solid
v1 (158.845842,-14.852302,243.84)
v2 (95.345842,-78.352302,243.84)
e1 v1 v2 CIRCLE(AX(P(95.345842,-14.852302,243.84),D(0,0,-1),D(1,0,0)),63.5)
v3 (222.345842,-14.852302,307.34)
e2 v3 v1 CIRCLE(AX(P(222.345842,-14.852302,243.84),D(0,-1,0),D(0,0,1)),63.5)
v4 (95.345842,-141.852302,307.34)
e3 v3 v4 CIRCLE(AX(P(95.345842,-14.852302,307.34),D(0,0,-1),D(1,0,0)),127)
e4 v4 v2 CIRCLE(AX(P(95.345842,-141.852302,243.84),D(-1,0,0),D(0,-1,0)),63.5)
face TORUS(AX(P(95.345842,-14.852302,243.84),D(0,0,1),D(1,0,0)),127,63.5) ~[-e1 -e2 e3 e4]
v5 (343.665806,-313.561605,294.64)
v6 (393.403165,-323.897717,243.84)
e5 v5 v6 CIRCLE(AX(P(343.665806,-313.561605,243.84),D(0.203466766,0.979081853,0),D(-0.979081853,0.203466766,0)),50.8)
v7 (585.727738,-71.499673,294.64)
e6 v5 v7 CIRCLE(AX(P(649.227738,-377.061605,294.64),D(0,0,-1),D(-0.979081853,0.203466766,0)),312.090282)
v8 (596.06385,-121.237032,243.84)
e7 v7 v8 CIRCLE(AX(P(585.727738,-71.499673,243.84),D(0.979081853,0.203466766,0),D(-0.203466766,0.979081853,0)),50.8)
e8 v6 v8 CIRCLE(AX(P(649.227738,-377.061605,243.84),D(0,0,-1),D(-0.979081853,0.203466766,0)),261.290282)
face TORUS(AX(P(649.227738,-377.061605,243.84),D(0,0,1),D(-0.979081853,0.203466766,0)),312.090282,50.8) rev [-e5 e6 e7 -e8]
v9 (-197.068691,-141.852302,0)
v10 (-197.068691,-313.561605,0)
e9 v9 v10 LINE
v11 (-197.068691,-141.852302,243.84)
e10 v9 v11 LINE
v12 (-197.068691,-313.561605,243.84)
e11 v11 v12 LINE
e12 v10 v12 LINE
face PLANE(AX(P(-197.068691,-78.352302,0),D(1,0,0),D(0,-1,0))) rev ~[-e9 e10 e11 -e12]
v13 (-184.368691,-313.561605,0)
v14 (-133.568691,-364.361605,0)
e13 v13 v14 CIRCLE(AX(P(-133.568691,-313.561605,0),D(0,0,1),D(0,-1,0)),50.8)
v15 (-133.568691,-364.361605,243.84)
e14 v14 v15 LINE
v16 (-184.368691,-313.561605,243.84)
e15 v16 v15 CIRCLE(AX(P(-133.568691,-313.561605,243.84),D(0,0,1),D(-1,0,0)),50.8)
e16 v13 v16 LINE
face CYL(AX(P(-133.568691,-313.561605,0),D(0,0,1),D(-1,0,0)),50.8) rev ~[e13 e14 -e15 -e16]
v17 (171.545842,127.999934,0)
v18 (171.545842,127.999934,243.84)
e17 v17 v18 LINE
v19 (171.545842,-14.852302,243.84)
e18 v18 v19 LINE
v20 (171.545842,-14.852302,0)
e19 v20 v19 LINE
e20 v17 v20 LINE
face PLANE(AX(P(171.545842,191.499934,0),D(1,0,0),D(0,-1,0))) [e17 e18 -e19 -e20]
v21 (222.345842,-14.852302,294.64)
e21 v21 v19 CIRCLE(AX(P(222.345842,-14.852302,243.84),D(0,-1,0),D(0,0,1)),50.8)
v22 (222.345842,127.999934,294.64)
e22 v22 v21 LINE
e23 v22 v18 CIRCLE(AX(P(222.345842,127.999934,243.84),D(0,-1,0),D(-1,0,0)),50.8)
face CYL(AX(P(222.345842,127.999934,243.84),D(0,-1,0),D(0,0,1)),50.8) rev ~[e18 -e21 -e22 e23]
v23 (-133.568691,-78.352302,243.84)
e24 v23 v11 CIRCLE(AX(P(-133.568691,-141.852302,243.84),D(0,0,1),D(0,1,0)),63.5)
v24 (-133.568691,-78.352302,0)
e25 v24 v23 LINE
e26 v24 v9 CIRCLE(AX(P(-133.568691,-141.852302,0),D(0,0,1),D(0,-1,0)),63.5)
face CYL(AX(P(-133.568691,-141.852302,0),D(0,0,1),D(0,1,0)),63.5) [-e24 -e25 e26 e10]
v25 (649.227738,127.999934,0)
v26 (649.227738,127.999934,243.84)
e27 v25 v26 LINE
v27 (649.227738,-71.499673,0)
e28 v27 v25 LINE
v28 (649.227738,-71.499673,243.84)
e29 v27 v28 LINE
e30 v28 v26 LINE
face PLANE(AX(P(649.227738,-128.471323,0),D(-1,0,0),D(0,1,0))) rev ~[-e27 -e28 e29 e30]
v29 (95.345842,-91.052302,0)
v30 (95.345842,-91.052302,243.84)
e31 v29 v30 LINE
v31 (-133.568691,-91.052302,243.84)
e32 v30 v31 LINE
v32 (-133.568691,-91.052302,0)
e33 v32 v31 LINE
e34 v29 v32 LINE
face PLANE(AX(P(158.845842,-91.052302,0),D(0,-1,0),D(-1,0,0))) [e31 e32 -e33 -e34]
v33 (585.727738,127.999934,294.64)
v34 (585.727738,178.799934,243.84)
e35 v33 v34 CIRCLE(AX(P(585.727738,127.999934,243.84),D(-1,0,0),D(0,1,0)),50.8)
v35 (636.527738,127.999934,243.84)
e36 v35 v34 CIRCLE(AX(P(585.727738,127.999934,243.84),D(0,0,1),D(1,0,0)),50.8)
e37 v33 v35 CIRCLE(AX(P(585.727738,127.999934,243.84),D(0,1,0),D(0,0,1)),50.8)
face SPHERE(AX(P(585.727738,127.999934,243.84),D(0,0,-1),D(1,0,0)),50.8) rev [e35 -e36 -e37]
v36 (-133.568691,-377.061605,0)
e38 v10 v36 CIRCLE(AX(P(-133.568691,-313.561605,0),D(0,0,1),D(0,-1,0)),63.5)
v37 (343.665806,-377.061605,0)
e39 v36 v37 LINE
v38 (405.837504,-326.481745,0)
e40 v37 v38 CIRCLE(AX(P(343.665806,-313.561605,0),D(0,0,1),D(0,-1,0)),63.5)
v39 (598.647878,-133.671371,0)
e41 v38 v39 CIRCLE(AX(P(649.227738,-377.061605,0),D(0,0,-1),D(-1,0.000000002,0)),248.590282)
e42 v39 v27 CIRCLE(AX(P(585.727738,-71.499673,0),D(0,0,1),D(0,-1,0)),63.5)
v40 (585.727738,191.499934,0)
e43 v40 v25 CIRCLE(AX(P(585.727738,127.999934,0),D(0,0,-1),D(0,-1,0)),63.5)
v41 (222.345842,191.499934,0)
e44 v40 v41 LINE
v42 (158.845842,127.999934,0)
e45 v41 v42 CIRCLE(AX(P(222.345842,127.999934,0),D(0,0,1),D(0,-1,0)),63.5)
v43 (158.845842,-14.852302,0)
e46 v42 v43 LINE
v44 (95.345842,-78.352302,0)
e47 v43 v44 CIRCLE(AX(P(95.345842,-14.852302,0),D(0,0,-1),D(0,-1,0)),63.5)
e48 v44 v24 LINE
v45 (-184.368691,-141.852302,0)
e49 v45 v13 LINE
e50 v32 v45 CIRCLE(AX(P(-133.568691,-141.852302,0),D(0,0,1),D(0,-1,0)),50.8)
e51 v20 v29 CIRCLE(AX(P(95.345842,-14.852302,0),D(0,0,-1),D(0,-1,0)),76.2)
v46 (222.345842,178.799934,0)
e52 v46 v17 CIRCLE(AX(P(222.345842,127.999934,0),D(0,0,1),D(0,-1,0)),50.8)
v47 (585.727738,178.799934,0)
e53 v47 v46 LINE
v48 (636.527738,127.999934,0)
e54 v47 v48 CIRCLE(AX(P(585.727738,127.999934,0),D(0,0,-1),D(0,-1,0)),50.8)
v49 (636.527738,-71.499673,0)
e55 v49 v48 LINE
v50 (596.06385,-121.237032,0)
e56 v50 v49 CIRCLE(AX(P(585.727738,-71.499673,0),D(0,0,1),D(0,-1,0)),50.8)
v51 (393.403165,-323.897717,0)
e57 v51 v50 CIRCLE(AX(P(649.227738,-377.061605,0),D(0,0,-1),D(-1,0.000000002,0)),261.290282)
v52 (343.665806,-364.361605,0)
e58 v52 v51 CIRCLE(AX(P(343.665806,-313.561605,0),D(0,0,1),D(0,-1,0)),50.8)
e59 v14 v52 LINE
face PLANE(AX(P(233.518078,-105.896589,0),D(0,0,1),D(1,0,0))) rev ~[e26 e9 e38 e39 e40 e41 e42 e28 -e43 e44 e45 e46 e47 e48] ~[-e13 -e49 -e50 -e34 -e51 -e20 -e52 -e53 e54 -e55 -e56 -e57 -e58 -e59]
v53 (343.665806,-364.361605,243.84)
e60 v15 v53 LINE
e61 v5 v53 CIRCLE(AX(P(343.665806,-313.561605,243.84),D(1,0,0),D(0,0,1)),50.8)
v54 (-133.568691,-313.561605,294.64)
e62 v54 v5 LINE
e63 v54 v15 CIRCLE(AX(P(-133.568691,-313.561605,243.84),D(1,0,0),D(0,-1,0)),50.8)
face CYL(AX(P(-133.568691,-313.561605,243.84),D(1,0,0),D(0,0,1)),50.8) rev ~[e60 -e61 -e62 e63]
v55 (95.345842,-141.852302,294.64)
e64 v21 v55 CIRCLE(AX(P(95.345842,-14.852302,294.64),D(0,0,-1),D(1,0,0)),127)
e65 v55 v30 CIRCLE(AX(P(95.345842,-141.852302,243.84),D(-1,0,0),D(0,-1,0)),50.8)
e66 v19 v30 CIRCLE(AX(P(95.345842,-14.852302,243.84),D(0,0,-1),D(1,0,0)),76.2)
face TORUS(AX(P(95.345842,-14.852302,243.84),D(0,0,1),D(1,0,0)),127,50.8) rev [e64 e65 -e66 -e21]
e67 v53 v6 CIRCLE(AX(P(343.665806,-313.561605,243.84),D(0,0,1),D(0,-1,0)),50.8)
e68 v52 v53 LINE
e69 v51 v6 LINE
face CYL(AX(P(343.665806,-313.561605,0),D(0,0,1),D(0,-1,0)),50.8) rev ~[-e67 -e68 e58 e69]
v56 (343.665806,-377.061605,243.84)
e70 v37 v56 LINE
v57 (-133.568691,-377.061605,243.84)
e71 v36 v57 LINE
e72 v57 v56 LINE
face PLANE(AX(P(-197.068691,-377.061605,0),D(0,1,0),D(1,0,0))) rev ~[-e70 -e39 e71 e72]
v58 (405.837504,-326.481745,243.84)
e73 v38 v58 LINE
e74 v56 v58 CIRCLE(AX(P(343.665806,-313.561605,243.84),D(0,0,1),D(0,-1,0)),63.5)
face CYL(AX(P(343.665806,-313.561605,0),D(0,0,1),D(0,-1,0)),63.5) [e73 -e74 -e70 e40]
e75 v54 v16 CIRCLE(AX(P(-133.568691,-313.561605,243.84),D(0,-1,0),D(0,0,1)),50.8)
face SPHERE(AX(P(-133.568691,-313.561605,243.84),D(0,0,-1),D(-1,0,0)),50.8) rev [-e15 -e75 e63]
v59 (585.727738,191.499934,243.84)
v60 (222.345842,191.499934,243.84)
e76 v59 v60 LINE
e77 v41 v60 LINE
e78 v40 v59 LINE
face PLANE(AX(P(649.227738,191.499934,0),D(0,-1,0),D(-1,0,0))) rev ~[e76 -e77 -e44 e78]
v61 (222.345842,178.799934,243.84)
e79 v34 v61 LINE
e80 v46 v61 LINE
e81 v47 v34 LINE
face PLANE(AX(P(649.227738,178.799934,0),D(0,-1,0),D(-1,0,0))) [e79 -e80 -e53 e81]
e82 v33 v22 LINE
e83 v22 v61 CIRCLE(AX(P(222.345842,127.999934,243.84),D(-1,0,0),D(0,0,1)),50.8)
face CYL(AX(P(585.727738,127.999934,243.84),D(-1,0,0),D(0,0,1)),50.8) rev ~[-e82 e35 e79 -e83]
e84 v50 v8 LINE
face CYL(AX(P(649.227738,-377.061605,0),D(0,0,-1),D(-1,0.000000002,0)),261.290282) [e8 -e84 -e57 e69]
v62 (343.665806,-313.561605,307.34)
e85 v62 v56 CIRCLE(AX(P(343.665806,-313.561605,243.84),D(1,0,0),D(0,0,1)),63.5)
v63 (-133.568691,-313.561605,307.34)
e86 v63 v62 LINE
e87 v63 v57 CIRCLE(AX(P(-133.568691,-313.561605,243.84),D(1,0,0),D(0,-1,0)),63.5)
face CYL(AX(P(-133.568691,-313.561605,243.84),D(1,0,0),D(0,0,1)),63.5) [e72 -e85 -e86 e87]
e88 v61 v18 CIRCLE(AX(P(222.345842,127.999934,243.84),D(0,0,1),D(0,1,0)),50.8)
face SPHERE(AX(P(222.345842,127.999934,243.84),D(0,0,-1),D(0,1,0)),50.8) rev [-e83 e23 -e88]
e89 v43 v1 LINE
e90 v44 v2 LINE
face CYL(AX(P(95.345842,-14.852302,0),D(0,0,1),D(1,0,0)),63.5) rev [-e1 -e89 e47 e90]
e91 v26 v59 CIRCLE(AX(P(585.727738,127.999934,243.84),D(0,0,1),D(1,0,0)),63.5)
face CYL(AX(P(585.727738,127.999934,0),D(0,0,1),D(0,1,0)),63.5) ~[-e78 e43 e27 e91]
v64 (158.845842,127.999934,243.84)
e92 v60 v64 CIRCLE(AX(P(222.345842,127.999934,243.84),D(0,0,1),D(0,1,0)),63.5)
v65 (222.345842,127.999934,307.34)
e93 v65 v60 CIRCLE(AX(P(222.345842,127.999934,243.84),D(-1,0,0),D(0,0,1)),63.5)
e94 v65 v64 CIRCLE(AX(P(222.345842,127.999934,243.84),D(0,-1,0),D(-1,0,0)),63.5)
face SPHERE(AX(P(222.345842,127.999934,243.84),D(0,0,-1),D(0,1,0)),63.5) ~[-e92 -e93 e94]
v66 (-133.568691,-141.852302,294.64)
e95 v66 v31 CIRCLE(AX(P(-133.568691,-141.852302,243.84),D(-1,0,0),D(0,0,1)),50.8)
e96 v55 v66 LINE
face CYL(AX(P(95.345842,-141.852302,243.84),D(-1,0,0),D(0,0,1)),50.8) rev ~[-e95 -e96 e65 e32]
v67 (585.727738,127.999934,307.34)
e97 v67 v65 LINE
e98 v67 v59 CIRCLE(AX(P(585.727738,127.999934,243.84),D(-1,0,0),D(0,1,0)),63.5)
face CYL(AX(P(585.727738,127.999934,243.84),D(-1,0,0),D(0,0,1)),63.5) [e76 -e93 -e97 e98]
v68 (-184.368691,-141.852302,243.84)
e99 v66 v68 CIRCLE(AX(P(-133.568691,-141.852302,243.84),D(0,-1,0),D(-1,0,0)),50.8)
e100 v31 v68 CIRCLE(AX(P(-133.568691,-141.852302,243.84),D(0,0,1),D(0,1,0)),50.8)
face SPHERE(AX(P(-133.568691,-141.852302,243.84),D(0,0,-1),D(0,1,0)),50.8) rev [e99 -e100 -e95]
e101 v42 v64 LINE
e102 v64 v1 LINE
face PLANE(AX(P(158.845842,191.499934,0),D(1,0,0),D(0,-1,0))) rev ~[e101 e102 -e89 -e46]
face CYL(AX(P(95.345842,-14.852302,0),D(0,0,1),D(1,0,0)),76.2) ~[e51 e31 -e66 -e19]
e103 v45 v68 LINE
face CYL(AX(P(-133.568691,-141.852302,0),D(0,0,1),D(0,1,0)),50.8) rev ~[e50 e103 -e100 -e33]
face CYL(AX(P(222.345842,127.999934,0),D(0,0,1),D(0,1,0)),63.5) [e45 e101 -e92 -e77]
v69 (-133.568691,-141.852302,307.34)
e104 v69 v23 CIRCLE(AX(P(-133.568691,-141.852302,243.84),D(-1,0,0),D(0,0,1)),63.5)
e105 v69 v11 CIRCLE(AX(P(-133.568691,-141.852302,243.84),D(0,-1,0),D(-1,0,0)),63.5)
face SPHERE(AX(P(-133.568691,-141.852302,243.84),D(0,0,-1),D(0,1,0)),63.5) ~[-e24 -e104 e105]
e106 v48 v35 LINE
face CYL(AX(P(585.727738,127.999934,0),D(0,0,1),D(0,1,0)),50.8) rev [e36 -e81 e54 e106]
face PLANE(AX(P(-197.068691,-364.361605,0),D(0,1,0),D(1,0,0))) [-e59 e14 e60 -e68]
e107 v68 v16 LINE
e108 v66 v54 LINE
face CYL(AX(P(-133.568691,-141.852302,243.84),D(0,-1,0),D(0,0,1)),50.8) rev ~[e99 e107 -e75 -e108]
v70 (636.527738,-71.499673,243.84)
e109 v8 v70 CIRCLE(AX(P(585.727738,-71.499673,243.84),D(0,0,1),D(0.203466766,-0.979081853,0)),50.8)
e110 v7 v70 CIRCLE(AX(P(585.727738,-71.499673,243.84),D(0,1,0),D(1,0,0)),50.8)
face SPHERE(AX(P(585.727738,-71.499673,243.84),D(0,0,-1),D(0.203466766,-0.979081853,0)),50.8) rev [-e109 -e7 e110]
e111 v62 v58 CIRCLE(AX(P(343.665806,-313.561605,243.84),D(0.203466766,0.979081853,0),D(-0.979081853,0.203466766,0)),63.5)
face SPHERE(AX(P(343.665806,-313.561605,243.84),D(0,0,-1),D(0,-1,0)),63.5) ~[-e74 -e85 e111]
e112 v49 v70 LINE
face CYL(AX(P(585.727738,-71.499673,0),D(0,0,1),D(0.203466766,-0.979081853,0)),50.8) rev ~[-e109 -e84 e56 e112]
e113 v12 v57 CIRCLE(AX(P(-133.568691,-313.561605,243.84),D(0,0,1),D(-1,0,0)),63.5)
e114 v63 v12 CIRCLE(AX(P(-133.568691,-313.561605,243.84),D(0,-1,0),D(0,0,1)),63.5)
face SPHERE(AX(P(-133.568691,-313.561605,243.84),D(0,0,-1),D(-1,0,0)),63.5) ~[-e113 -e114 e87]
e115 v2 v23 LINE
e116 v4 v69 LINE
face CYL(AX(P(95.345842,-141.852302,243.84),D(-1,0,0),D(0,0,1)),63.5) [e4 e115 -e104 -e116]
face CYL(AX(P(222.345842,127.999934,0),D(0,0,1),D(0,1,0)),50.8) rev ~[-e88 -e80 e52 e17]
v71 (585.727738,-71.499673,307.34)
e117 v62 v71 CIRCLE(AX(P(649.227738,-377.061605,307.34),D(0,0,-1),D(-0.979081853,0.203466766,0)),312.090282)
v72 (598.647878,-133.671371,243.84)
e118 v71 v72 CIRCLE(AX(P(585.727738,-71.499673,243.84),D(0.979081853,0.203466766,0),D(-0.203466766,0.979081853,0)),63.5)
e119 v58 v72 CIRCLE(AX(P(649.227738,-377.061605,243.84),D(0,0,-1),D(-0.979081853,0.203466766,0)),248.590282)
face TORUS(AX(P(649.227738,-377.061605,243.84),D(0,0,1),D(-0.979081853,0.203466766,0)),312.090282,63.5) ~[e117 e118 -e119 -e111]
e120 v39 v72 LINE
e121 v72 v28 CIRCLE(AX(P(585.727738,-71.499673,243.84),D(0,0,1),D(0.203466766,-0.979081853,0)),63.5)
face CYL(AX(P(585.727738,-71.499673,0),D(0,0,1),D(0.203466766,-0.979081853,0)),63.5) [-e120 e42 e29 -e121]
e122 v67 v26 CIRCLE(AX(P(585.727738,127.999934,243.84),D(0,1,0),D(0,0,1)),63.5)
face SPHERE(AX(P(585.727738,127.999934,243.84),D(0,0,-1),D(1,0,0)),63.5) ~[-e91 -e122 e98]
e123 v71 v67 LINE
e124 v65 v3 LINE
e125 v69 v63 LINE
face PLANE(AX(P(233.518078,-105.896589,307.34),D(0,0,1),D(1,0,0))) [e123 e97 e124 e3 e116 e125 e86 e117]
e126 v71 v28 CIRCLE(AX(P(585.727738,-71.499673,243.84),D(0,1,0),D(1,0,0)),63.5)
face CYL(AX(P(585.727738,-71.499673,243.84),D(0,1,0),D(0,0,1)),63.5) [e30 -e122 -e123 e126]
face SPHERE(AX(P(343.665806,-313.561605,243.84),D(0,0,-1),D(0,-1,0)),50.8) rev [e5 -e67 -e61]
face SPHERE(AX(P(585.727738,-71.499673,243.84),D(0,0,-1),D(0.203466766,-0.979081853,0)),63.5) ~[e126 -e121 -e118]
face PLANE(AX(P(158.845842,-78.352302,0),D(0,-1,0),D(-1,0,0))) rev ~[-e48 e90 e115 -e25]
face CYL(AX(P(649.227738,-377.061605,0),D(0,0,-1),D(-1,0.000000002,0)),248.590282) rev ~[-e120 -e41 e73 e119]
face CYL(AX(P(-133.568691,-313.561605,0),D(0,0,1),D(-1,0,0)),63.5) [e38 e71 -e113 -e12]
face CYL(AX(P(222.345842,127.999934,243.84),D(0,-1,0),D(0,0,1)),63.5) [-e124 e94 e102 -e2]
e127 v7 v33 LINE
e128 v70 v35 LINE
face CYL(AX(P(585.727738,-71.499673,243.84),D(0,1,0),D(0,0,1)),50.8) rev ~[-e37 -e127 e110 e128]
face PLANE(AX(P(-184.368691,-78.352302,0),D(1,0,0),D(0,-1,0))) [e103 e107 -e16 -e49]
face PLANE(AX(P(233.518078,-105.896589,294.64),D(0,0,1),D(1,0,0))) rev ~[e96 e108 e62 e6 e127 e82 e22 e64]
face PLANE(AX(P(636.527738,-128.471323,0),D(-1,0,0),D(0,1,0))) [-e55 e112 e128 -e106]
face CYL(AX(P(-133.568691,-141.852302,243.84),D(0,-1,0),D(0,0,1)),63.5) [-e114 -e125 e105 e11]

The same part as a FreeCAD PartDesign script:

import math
import FreeCAD as App
import Part
import Sketcher
Q = App.Units.Quantity


def edges_at(feature, points):
    """Names of the edges that pass closest to the given points."""
    edges = feature.Shape.Edges
    near = lambda p: min(range(len(edges)), key=lambda i: edges[i].distToShape(Part.Vertex(*p))[0])
    return sorted({f"Edge{near(p) + 1}" for p in points})


def faces_at(feature, points):
    """Names of the faces that lie closest to the given points."""
    faces = feature.Shape.Faces
    near = lambda p: min(range(len(faces)), key=lambda i: faces[i].distToShape(Part.Vertex(*p))[0])
    return sorted({f"Face{near(p) + 1}" for p in points})

doc = App.newDocument("Part")
params = doc.addObject("Spreadsheet::Sheet", "Params")
for row, (alias, value) in enumerate([
    ("pad1_length", "12.1 in"),
    ("fillet_radius", "2.5 in"),
    ("fillet2_radius", "2.5 in"),
    ("thickness_wall", "0.5 in"),
], start=1):
    params.set(f"A{row}", alias)
    params.set(f"B{row}", "=" + value)
    params.setAlias(f"B{row}", alias)

body = doc.addObject("PartDesign::Body", "Body")

# Sketch on XY plane
sketch1 = body.newObject("Sketcher::SketchObject", "Sketch")
sketch1.AttachmentSupport = (doc.getObject("XY_Plane"), [""])
sketch1.MapMode = "FlatFace"
sketch1.addGeometry(Part.LineSegment(App.Vector(649, 191, 0), App.Vector(159, 191, 0)), False)
sketch1.addGeometry(Part.LineSegment(App.Vector(159, 191, 0), App.Vector(159, -78, 0)), False)
sketch1.addGeometry(Part.LineSegment(App.Vector(159, -78, 0), App.Vector(-197, -78, 0)), False)
sketch1.addGeometry(Part.LineSegment(App.Vector(-197, -78, 0), App.Vector(-197, -377, 0)), False)
sketch1.addGeometry(Part.LineSegment(App.Vector(-197, -377, 0), App.Vector(401, -377, 0)), False)
sketch1.addGeometry(Part.ArcOfCircle(Part.Circle(App.Vector(649, -377, 0), App.Vector(0, 0, 1), 249), math.radians(90), math.radians(180)), False)
sketch1.addGeometry(Part.LineSegment(App.Vector(649, -128, 0), App.Vector(649, 191, 0)), False)
sketch1.addConstraint(Sketcher.Constraint("Coincident", 0, 2, 1, 1))
sketch1.addConstraint(Sketcher.Constraint("Coincident", 1, 2, 2, 1))
sketch1.addConstraint(Sketcher.Constraint("Coincident", 2, 2, 3, 1))
sketch1.addConstraint(Sketcher.Constraint("Coincident", 3, 2, 4, 1))
sketch1.addConstraint(Sketcher.Constraint("Coincident", 4, 2, 5, 2))
sketch1.addConstraint(Sketcher.Constraint("Coincident", 5, 1, 6, 1))
sketch1.addConstraint(Sketcher.Constraint("Coincident", 6, 2, 0, 1))
sketch1.addConstraint(Sketcher.Constraint("Horizontal", 0))
sketch1.addConstraint(Sketcher.Constraint("Vertical", 1))
sketch1.addConstraint(Sketcher.Constraint("Horizontal", 2))
sketch1.addConstraint(Sketcher.Constraint("Vertical", 3))
sketch1.addConstraint(Sketcher.Constraint("Horizontal", 4))
sketch1.addConstraint(Sketcher.Constraint("Vertical", 6))
sketch1.addConstraint(Sketcher.Constraint("Horizontal", 5, 3, 3, 2))
sketch1.addConstraint(Sketcher.Constraint("Radius", 5, Q("248.590282 mm")))
sketch1.addConstraint(Sketcher.Constraint("DistanceY", 1, 2, -1, 1, Q("78.352302 mm")))
sketch1.addConstraint(Sketcher.Constraint("DistanceX", 0, 2, 0, 1, Q("490.381896 mm")))
sketch1.addConstraint(Sketcher.Constraint("DistanceX", 2, 2, 2, 1, Q("355.914533 mm")))
sketch1.addConstraint(Sketcher.Constraint("DistanceX", 4, 1, 4, 2, Q("597.706147 mm")))
sketch1.addConstraint(Sketcher.Constraint("DistanceY", 1, 2, 1, 1, Q("269.852236 mm")))
sketch1.addConstraint(Sketcher.Constraint("DistanceY", 3, 2, 3, 1, Q("298.709303 mm")))
sketch1.addConstraint(Sketcher.Constraint("DistanceX", -1, 1, 5, 3, Q("649.227738 mm")))
pad1 = body.newObject("PartDesign::Pad", "Pad")
pad1.Profile = sketch1
pad1.setExpression("Length", "Params.pad1_length")
doc.recompute()

fillet = body.newObject("PartDesign::Fillet", "Fillet")
fillet.Base = (pad1, edges_at(pad1, [
    (158.846, 191.5, 153.67),
    (158.846, -78.352, 153.67),
    (-197.069, -78.352, 153.67),
    (-197.069, -377.062, 153.67),
    (649.228, -128.471, 153.67),
    (400.637, -377.062, 153.67),
    (649.228, 191.5, 153.67),
]))
fillet.setExpression("Radius", "Params.fillet_radius")
doc.recompute()

fillet2 = body.newObject("PartDesign::Fillet", "Fillet001")
fillet2.Base = (fillet, edges_at(fillet, [
    (473.448, -201.282, 307.34),
    (383.74, -362.819, 307.34),
    (634.986, -111.573, 307.34),
    (105.049, -377.062, 307.34),
    (649.228, 28.25, 307.34),
    (-178.47, -358.463, 307.34),
    (630.629, 172.901, 307.34),
    (-197.069, -227.707, 307.34),
    (404.037, 191.5, 307.34),
    (-178.47, -96.951, 307.34),
    (177.445, 172.901, 307.34),
    (-19.111, -78.352, 307.34),
    (158.846, 56.574, 307.34),
    (140.247, -59.754, 307.34),
]))
fillet2.setExpression("Radius", "Params.fillet2_radius")
doc.recompute()

thickness = body.newObject("PartDesign::Thickness", "Thickness")
thickness.Base = (fillet2, faces_at(fillet2, [(226.08, -92.781, 0)]))
thickness.setExpression("Value", "Params.thickness_wall")
thickness.Reversed = True
thickness.Join = "Arc"

doc.recompute()
